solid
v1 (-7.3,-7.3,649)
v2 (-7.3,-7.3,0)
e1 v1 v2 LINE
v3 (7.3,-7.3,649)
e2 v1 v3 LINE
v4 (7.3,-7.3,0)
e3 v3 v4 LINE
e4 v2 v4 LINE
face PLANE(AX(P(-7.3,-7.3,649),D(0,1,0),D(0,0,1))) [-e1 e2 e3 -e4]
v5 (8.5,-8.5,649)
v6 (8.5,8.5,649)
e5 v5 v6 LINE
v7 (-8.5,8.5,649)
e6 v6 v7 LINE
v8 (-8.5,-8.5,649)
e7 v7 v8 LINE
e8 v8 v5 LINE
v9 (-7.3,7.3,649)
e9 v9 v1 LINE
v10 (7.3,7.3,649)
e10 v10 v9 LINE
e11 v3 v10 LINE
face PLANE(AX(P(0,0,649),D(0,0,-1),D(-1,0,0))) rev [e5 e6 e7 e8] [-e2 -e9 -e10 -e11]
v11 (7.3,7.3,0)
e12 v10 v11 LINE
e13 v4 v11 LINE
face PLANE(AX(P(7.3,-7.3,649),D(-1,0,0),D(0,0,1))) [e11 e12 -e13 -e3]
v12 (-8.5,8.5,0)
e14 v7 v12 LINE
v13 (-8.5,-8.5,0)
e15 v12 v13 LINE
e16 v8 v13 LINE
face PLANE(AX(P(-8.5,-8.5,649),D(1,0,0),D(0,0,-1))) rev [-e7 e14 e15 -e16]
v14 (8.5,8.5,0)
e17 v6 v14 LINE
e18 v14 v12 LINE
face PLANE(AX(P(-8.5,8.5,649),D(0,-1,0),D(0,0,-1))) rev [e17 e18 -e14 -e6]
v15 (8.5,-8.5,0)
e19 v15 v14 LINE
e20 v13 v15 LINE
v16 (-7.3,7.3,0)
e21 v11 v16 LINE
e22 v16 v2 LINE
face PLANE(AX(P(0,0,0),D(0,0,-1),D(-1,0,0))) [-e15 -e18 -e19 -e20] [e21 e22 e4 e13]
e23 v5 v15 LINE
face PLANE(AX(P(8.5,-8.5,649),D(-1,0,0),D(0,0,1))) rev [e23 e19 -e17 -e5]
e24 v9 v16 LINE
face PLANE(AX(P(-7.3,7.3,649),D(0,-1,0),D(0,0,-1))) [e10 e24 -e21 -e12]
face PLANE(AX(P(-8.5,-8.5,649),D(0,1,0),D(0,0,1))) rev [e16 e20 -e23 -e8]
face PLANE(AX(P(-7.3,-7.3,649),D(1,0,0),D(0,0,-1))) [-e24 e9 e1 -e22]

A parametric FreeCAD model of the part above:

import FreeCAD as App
import Part
import Sketcher


def add_polygon(sketch, points):
    """Adds a closed chain of lines whose ends are joined by coincident constraints."""
    first, n = sketch.GeometryCount, len(points)
    for a, b in zip(points, points[1:] + points[:1]):
        sketch.addGeometry(Part.LineSegment(App.Vector(*a, 0), App.Vector(*b, 0)), False)
    for i in range(n):
        sketch.addConstraint(Sketcher.Constraint("Coincident", first + i, 2, first + (i + 1) % n, 1))

doc = App.newDocument("Part")
params = doc.addObject("Spreadsheet::Sheet", "Params")
for row, (alias, value) in enumerate([
    ("sketch1_width", "17 mm"),
    ("sketch1_width2", "14.6 mm"),
    ("pad1_length", "649 mm"),
], start=1):
    params.set(f"A{row}", alias)
    params.set(f"B{row}", "=" + value)
    params.setAlias(f"B{row}", alias)

body = doc.addObject("PartDesign::Body", "Body")

sketch1 = body.newObject("Sketcher::SketchObject", "Sketch")
sketch1.AttachmentSupport = (doc.getObject("XY_Plane"), [""])
sketch1.MapMode = "FlatFace"
add_polygon(sketch1, [(-8.5, 8.5), (-8.5, -8.5), (8.5, -8.5), (8.5, 8.5)])
add_polygon(sketch1, [(7.3, -7.3), (-7.3, -7.3), (-7.3, 7.3), (7.3, 7.3)])
sketch1.addConstraint(Sketcher.Constraint("Vertical", 0))
sketch1.addConstraint(Sketcher.Constraint("Horizontal", 1))
sketch1.addConstraint(Sketcher.Constraint("Vertical", 2))
sketch1.addConstraint(Sketcher.Constraint("Horizontal", 3))
sketch1.addConstraint(Sketcher.Constraint("Horizontal", 4))
sketch1.addConstraint(Sketcher.Constraint("Vertical", 5))
sketch1.addConstraint(Sketcher.Constraint("Horizontal", 6))
sketch1.addConstraint(Sketcher.Constraint("Vertical", 7))
sketch1.addConstraint(Sketcher.Constraint("Symmetric", 0, 2, 2, 2, -1, 1))
sketch1.addConstraint(Sketcher.Constraint("Symmetric", 4, 2, 6, 2, -1, 1))
sketch1.addConstraint(Sketcher.Constraint("Equal", 3, 0))
sketch1.addConstraint(Sketcher.Constraint("Equal", 6, 5))
sketch1.addConstraint(Sketcher.Constraint("DistanceX", 1, 1, 1, 2, 17.0))
sketch1.addConstraint(Sketcher.Constraint("DistanceX", 4, 2, 4, 1, 14.6))
sketch1.setExpression("Constraints[20]", "Params.sketch1_width")
sketch1.setExpression("Constraints[21]", "Params.sketch1_width2")
pad1 = body.newObject("PartDesign::Pad", "Pad")
pad1.Profile = sketch1
pad1.setExpression("Length", "Params.pad1_length")

doc.recompute()
